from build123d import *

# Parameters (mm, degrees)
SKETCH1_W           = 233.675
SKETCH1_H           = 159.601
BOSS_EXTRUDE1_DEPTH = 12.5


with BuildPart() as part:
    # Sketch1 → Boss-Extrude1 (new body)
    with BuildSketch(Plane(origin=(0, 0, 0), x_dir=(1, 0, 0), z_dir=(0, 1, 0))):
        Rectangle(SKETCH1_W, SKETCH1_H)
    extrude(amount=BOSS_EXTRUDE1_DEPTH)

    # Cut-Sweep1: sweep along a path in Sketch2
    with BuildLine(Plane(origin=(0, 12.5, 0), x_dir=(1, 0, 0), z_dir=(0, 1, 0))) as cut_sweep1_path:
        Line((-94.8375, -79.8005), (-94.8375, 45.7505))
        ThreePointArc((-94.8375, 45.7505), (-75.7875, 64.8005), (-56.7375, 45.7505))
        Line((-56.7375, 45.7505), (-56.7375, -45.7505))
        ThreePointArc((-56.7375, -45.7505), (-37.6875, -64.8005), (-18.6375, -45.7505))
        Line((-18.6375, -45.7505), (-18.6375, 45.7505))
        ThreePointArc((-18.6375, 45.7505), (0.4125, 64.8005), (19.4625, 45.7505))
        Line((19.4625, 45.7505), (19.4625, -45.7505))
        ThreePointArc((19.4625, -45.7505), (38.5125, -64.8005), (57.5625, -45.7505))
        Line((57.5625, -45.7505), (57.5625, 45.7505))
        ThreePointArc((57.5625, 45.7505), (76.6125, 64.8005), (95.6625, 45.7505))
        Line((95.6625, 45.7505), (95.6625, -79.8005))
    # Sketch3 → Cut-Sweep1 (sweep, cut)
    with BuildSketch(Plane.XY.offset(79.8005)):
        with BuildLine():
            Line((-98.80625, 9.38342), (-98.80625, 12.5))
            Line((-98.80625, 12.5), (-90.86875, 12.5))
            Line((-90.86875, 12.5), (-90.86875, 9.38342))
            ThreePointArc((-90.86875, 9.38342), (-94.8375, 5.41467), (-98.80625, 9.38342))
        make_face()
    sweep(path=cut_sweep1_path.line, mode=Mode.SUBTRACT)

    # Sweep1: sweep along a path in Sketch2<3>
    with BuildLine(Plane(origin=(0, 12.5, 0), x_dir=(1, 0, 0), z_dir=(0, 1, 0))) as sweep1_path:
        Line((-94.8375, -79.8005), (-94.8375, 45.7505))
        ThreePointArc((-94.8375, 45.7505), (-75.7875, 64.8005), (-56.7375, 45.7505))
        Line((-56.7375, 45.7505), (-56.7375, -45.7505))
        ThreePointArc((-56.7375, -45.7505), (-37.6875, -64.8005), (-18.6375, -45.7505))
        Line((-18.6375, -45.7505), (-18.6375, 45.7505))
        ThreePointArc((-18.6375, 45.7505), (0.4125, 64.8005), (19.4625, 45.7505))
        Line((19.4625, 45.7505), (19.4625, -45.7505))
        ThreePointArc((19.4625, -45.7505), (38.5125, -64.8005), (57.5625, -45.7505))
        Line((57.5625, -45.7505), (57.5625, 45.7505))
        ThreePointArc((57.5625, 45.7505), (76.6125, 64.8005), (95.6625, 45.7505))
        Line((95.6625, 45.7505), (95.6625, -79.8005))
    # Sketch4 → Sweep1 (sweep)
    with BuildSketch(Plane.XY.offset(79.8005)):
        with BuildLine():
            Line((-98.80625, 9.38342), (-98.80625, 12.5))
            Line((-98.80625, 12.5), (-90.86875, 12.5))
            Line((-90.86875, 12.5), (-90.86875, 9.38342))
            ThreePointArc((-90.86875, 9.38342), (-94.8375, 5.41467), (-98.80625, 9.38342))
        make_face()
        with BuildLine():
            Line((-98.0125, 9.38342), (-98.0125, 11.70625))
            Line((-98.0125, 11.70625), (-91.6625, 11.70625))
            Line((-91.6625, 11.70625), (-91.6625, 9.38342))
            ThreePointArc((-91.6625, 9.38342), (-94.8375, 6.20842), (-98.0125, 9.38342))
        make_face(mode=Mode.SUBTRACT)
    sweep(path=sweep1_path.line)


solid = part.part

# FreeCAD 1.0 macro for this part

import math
import FreeCAD as App
import Part
import Sketcher

V = App.Vector
Q = App.Units.Quantity

doc = App.newDocument("Part")
params = doc.addObject("Spreadsheet::Sheet", "Params")
for row, (alias, value) in enumerate([
    ("pad1_length", "12.5 mm"),
    ("sketch2_radius", "0.15625 in"),
    ("sketch3_radius", "0.75 in"),
    ("sketch4_radius", "0.15625 in"),
    ("sketch4_radius2", "0.125 in"),
    ("sketch5_radius", "0.75 in"),
], start=1):
    params.set(f"A{row}", alias)
    params.set(f"B{row}", "=" + value)
    params.setAlias(f"B{row}", alias)

body = doc.addObject("PartDesign::Body", "Body")

sketch1 = body.newObject("Sketcher::SketchObject", "Sketch")
sketch1.AttachmentSupport = (doc.getObject("XZ_Plane"), [""])
sketch1.MapMode = "FlatFace"
sketch1.addGeometry([
    Part.LineSegment(V(-117, -80, 0), V(-117, 80, 0)),
    Part.LineSegment(V(-117, 80, 0), V(117, 80, 0)),
    Part.LineSegment(V(117, 80, 0), V(117, -80, 0)),
    Part.LineSegment(V(117, -80, 0), V(-117, -80, 0)),
], False)
sketch1.addConstraint([
    Sketcher.Constraint("Coincident", 0, 2, 1, 1),
    Sketcher.Constraint("Coincident", 1, 2, 2, 1),
    Sketcher.Constraint("Coincident", 2, 2, 3, 1),
    Sketcher.Constraint("Coincident", 3, 2, 0, 1),
    Sketcher.Constraint("Vertical", 0),
    Sketcher.Constraint("Horizontal", 1),
    Sketcher.Constraint("Vertical", 2),
    Sketcher.Constraint("Horizontal", 3),
    Sketcher.Constraint("Symmetric", 0, 2, 2, 2, -1, 1),
    Sketcher.Constraint("DistanceX", 1, 1, 1, 2, Q("233.675 mm")),
    Sketcher.Constraint("DistanceY", 0, 1, 0, 2, Q("159.601 mm")),
])
pad1 = body.newObject("PartDesign::Pad", "Pad")
pad1.Profile = sketch1
pad1.setExpression("Length", "Params.pad1_length")
pad1.Reversed = True

sketch2 = body.newObject("Sketcher::SketchObject", "Sketch001")
sketch2.AttachmentSupport = (doc.getObject("XY_Plane"), [""])
sketch2.MapMode = "FlatFace"
sketch2.AttachmentOffset = App.Placement(V(0, 0, 79.8005), App.Rotation())
sketch2.addGeometry([
    Part.LineSegment(V(-98.8, 12.5, 0), V(-98.8, 9.4, 0)),
    Part.ArcOfCircle(Part.Circle(V(-94.8, 9.4, 0), V(0, 0, 1), 4), math.radians(180), math.radians(360)),
    Part.LineSegment(V(-90.9, 9.4, 0), V(-90.9, 12.5, 0)),
    Part.LineSegment(V(-90.9, 12.5, 0), V(-98.8, 12.5, 0)),
], False)
sketch2.addConstraint([
    Sketcher.Constraint("Tangent", 0, 2, 1, 1),
    Sketcher.Constraint("Tangent", 1, 2, 2, 1),
    Sketcher.Constraint("Coincident", 2, 2, 3, 1),
    Sketcher.Constraint("Coincident", 3, 2, 0, 1),
    Sketcher.Constraint("Vertical", 0),
    Sketcher.Constraint("Vertical", 2),
    Sketcher.Constraint("Horizontal", 3),
    Sketcher.Constraint("Radius", 1, Q("0.15625 in")),
    Sketcher.Constraint("DistanceY", 0, 2, 0, 1, Q("0.1227 in")),
    Sketcher.Constraint("DistanceX", 1, 3, -1, 1, Q("94.8375 mm")),
    Sketcher.Constraint("DistanceY", -1, 1, 2, 2, Q("12.5 mm")),
])
sketch2.setExpression("Constraints[7]", "Params.sketch2_radius")

sketch3 = body.newObject("Sketcher::SketchObject", "Sketch002")
sketch3.AttachmentSupport = (doc.getObject("XZ_Plane"), [""])
sketch3.MapMode = "FlatFace"
sketch3.AttachmentOffset = App.Placement(V(0, 0, -12.5), App.Rotation())
sketch3.addGeometry([
    Part.LineSegment(V(-95, 80, 0), V(-95, -46, 0)),
    Part.ArcOfCircle(Part.Circle(V(-76, -46, 0), V(0, 0, 1), 19), math.radians(180), math.radians(360)),
    Part.LineSegment(V(-57, -46, 0), V(-57, 46, 0)),
    Part.ArcOfCircle(Part.Circle(V(-38, 46, 0), V(0, 0, 1), 19), math.radians(0), math.radians(180)),
    Part.LineSegment(V(-19, 46, 0), V(-19, -46, 0)),
    Part.ArcOfCircle(Part.Circle(V(0, -46, 0), V(0, 0, 1), 19), math.radians(180), math.radians(360)),
    Part.LineSegment(V(19, -46, 0), V(19, 46, 0)),
    Part.ArcOfCircle(Part.Circle(V(39, 46, 0), V(0, 0, 1), 19), math.radians(0), math.radians(180)),
    Part.LineSegment(V(58, 46, 0), V(58, -46, 0)),
    Part.ArcOfCircle(Part.Circle(V(77, -46, 0), V(0, 0, 1), 19), math.radians(180), math.radians(360)),
    Part.LineSegment(V(96, -46, 0), V(96, 80, 0)),
], False)
sketch3.addConstraint([
    Sketcher.Constraint("Tangent", 0, 2, 1, 1),
    Sketcher.Constraint("Tangent", 1, 2, 2, 1),
    Sketcher.Constraint("Tangent", 2, 2, 3, 2),
    Sketcher.Constraint("Tangent", 3, 1, 4, 1),
    Sketcher.Constraint("Tangent", 4, 2, 5, 1),
    Sketcher.Constraint("Tangent", 5, 2, 6, 1),
    Sketcher.Constraint("Tangent", 6, 2, 7, 2),
    Sketcher.Constraint("Tangent", 7, 1, 8, 1),
    Sketcher.Constraint("Tangent", 8, 2, 9, 1),
    Sketcher.Constraint("Tangent", 9, 2, 10, 1),
    Sketcher.Constraint("Vertical", 0),
    Sketcher.Constraint("Vertical", 2),
    Sketcher.Constraint("Vertical", 4),
    Sketcher.Constraint("Vertical", 6),
    Sketcher.Constraint("Vertical", 8),
    Sketcher.Constraint("Vertical", 10),
    Sketcher.Constraint("Equal", 1, 3),
    Sketcher.Constraint("Equal", 3, 5),
    Sketcher.Constraint("Equal", 5, 7),
    Sketcher.Constraint("Equal", 7, 9),
    Sketcher.Constraint("Horizontal", 1, 3, 5, 3),
    Sketcher.Constraint("Horizontal", 3, 3, 7, 3),
    Sketcher.Constraint("Horizontal", 5, 3, 9, 3),
    Sketcher.Constraint("Horizontal", 0, 1, 10, 2),
    Sketcher.Constraint("Radius", 1, Q("0.75 in")),
    Sketcher.Constraint("DistanceY", 0, 2, 0, 1, Q("125.551 mm")),
    Sketcher.Constraint("DistanceY", 2, 1, 2, 2, Q("91.501 mm")),
    Sketcher.Constraint("DistanceX", 1, 3, -1, 1, Q("75.7875 mm")),
    Sketcher.Constraint("DistanceY", 1, 3, -1, 1, Q("45.7505 mm")),
])
sketch3.setExpression("Constraints[24]", "Params.sketch3_radius")
doc.recompute()

subtractivepipe = body.newObject("PartDesign::SubtractivePipe", "SubtractivePipe")
subtractivepipe.Profile = sketch2
subtractivepipe.Spine = (sketch3, ["Edge1", "Edge2", "Edge3", "Edge4", "Edge5", "Edge6", "Edge7", "Edge8", "Edge9", "Edge10", "Edge11"])

sketch4 = body.newObject("Sketcher::SketchObject", "Sketch003")
sketch4.AttachmentSupport = (doc.getObject("XY_Plane"), [""])
sketch4.MapMode = "FlatFace"
sketch4.AttachmentOffset = App.Placement(V(0, 0, 79.8005), App.Rotation())
sketch4.addGeometry([
    Part.LineSegment(V(-98.8, 12.5, 0), V(-98.8, 9.4, 0)),
    Part.ArcOfCircle(Part.Circle(V(-94.8, 9.4, 0), V(0, 0, 1), 4), math.radians(180), math.radians(360)),
    Part.LineSegment(V(-90.9, 9.4, 0), V(-90.9, 12.5, 0)),
    Part.LineSegment(V(-90.9, 12.5, 0), V(-98.8, 12.5, 0)),
    Part.LineSegment(V(-98, 9.4, 0), V(-98, 11.7, 0)),
    Part.LineSegment(V(-98, 11.7, 0), V(-91.7, 11.7, 0)),
    Part.LineSegment(V(-91.7, 11.7, 0), V(-91.7, 9.4, 0)),
    Part.ArcOfCircle(Part.Circle(V(-94.8, 9.4, 0), V(0, 0, 1), 3.2), math.radians(180), math.radians(360)),
], False)
sketch4.addConstraint([
    Sketcher.Constraint("Tangent", 0, 2, 1, 1),
    Sketcher.Constraint("Tangent", 1, 2, 2, 1),
    Sketcher.Constraint("Coincident", 2, 2, 3, 1),
    Sketcher.Constraint("Coincident", 3, 2, 0, 1),
    Sketcher.Constraint("Coincident", 4, 2, 5, 1),
    Sketcher.Constraint("Coincident", 5, 2, 6, 1),
    Sketcher.Constraint("Tangent", 6, 2, 7, 2),
    Sketcher.Constraint("Tangent", 7, 1, 4, 1),
    Sketcher.Constraint("Vertical", 0),
    Sketcher.Constraint("Vertical", 2),
    Sketcher.Constraint("Horizontal", 3),
    Sketcher.Constraint("Vertical", 4),
    Sketcher.Constraint("Horizontal", 5),
    Sketcher.Constraint("Vertical", 6),
    Sketcher.Constraint("Coincident", 7, 3, 1, 3),
    Sketcher.Constraint("Radius", 1, Q("0.15625 in")),
    Sketcher.Constraint("Radius", 7, Q("0.125 in")),
    Sketcher.Constraint("DistanceY", 0, 2, 0, 1, Q("0.1227 in")),
    Sketcher.Constraint("DistanceY", 4, 2, 3, 2, Q("0.03125 in")),
    Sketcher.Constraint("DistanceX", 1, 3, -1, 1, Q("94.8375 mm")),
    Sketcher.Constraint("DistanceY", -1, 1, 2, 2, Q("12.5 mm")),
])
sketch4.setExpression("Constraints[15]", "Params.sketch4_radius")
sketch4.setExpression("Constraints[16]", "Params.sketch4_radius2")

sketch5 = body.newObject("Sketcher::SketchObject", "Sketch004")
sketch5.AttachmentSupport = (doc.getObject("XZ_Plane"), [""])
sketch5.MapMode = "FlatFace"
sketch5.AttachmentOffset = App.Placement(V(0, 0, -12.5), App.Rotation())
sketch5.addGeometry([
    Part.LineSegment(V(-95, 80, 0), V(-95, -46, 0)),
    Part.ArcOfCircle(Part.Circle(V(-76, -46, 0), V(0, 0, 1), 19), math.radians(180), math.radians(360)),
    Part.LineSegment(V(-57, -46, 0), V(-57, 46, 0)),
    Part.ArcOfCircle(Part.Circle(V(-38, 46, 0), V(0, 0, 1), 19), math.radians(0), math.radians(180)),
    Part.LineSegment(V(-19, 46, 0), V(-19, -46, 0)),
    Part.ArcOfCircle(Part.Circle(V(0, -46, 0), V(0, 0, 1), 19), math.radians(180), math.radians(360)),
    Part.LineSegment(V(19, -46, 0), V(19, 46, 0)),
    Part.ArcOfCircle(Part.Circle(V(39, 46, 0), V(0, 0, 1), 19), math.radians(0), math.radians(180)),
    Part.LineSegment(V(58, 46, 0), V(58, -46, 0)),
    Part.ArcOfCircle(Part.Circle(V(77, -46, 0), V(0, 0, 1), 19), math.radians(180), math.radians(360)),
    Part.LineSegment(V(96, -46, 0), V(96, 80, 0)),
], False)
sketch5.addConstraint([
    Sketcher.Constraint("Tangent", 0, 2, 1, 1),
    Sketcher.Constraint("Tangent", 1, 2, 2, 1),
    Sketcher.Constraint("Tangent", 2, 2, 3, 2),
    Sketcher.Constraint("Tangent", 3, 1, 4, 1),
    Sketcher.Constraint("Tangent", 4, 2, 5, 1),
    Sketcher.Constraint("Tangent", 5, 2, 6, 1),
    Sketcher.Constraint("Tangent", 6, 2, 7, 2),
    Sketcher.Constraint("Tangent", 7, 1, 8, 1),
    Sketcher.Constraint("Tangent", 8, 2, 9, 1),
    Sketcher.Constraint("Tangent", 9, 2, 10, 1),
    Sketcher.Constraint("Vertical", 0),
    Sketcher.Constraint("Vertical", 2),
    Sketcher.Constraint("Vertical", 4),
    Sketcher.Constraint("Vertical", 6),
    Sketcher.Constraint("Vertical", 8),
    Sketcher.Constraint("Vertical", 10),
    Sketcher.Constraint("Equal", 1, 3),
    Sketcher.Constraint("Equal", 3, 5),
    Sketcher.Constraint("Equal", 5, 7),
    Sketcher.Constraint("Equal", 7, 9),
    Sketcher.Constraint("Horizontal", 1, 3, 5, 3),
    Sketcher.Constraint("Horizontal", 3, 3, 7, 3),
    Sketcher.Constraint("Horizontal", 5, 3, 9, 3),
    Sketcher.Constraint("Horizontal", 0, 1, 10, 2),
    Sketcher.Constraint("Radius", 1, Q("0.75 in")),
    Sketcher.Constraint("DistanceY", 0, 2, 0, 1, Q("125.551 mm")),
    Sketcher.Constraint("DistanceY", 2, 1, 2, 2, Q("91.501 mm")),
    Sketcher.Constraint("DistanceX", 1, 3, -1, 1, Q("75.7875 mm")),
    Sketcher.Constraint("DistanceY", 1, 3, -1, 1, Q("45.7505 mm")),
])
sketch5.setExpression("Constraints[24]", "Params.sketch5_radius")
doc.recompute()

additivepipe = body.newObject("PartDesign::AdditivePipe", "AdditivePipe")
additivepipe.Profile = sketch4
additivepipe.Spine = (sketch5, ["Edge1", "Edge2", "Edge3", "Edge4", "Edge5", "Edge6", "Edge7", "Edge8", "Edge9", "Edge10", "Edge11"])

doc.recompute()
